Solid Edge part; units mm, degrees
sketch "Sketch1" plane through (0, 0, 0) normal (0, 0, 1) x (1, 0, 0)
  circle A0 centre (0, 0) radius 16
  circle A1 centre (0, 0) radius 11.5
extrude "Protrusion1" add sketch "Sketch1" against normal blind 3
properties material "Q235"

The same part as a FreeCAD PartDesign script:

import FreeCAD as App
import Part
import Sketcher
from FreeCAD import Vector
Q = App.Units.Quantity

doc = App.newDocument("Part")
params = doc.addObject("Spreadsheet::Sheet", "Params")
for row, (alias, value) in enumerate([
    ("sketch1_diameter", "32 mm"),
    ("sketch1_diameter2", "23 mm"),
    ("pad1_length", "3 mm"),
], start=1):
    params.set(f"A{row}", alias)
    params.set(f"B{row}", "=" + value)
    params.setAlias(f"B{row}", alias)

body = doc.addObject("PartDesign::Body", "Body")

sketch1 = body.newObject("Sketcher::SketchObject", "Sketch")
sketch1.AttachmentSupport = (doc.getObject("XY_Plane"), [""])
sketch1.MapMode = "FlatFace"
sketch1.addGeometry(Part.Circle(Vector(0, 0, 0), Vector(0, 0, 1), 16), False)
sketch1.addGeometry(Part.Circle(Vector(0, 0, 0), Vector(0, 0, 1), 12), False)
sketch1.addConstraint(Sketcher.Constraint("Coincident", 0, 3, -1, 1))
sketch1.addConstraint(Sketcher.Constraint("Coincident", 1, 3, -1, 1))
sketch1.addConstraint(Sketcher.Constraint("Diameter", 0, Q("32 mm")))
sketch1.addConstraint(Sketcher.Constraint("Diameter", 1, Q("23 mm")))
sketch1.setExpression("Constraints[2]", "Params.sketch1_diameter")
sketch1.setExpression("Constraints[3]", "Params.sketch1_diameter2")
pad1 = body.newObject("PartDesign::Pad", "Pad")
pad1.Profile = sketch1
pad1.setExpression("Length", "Params.pad1_length")
pad1.Reversed = True

doc.recompute()
